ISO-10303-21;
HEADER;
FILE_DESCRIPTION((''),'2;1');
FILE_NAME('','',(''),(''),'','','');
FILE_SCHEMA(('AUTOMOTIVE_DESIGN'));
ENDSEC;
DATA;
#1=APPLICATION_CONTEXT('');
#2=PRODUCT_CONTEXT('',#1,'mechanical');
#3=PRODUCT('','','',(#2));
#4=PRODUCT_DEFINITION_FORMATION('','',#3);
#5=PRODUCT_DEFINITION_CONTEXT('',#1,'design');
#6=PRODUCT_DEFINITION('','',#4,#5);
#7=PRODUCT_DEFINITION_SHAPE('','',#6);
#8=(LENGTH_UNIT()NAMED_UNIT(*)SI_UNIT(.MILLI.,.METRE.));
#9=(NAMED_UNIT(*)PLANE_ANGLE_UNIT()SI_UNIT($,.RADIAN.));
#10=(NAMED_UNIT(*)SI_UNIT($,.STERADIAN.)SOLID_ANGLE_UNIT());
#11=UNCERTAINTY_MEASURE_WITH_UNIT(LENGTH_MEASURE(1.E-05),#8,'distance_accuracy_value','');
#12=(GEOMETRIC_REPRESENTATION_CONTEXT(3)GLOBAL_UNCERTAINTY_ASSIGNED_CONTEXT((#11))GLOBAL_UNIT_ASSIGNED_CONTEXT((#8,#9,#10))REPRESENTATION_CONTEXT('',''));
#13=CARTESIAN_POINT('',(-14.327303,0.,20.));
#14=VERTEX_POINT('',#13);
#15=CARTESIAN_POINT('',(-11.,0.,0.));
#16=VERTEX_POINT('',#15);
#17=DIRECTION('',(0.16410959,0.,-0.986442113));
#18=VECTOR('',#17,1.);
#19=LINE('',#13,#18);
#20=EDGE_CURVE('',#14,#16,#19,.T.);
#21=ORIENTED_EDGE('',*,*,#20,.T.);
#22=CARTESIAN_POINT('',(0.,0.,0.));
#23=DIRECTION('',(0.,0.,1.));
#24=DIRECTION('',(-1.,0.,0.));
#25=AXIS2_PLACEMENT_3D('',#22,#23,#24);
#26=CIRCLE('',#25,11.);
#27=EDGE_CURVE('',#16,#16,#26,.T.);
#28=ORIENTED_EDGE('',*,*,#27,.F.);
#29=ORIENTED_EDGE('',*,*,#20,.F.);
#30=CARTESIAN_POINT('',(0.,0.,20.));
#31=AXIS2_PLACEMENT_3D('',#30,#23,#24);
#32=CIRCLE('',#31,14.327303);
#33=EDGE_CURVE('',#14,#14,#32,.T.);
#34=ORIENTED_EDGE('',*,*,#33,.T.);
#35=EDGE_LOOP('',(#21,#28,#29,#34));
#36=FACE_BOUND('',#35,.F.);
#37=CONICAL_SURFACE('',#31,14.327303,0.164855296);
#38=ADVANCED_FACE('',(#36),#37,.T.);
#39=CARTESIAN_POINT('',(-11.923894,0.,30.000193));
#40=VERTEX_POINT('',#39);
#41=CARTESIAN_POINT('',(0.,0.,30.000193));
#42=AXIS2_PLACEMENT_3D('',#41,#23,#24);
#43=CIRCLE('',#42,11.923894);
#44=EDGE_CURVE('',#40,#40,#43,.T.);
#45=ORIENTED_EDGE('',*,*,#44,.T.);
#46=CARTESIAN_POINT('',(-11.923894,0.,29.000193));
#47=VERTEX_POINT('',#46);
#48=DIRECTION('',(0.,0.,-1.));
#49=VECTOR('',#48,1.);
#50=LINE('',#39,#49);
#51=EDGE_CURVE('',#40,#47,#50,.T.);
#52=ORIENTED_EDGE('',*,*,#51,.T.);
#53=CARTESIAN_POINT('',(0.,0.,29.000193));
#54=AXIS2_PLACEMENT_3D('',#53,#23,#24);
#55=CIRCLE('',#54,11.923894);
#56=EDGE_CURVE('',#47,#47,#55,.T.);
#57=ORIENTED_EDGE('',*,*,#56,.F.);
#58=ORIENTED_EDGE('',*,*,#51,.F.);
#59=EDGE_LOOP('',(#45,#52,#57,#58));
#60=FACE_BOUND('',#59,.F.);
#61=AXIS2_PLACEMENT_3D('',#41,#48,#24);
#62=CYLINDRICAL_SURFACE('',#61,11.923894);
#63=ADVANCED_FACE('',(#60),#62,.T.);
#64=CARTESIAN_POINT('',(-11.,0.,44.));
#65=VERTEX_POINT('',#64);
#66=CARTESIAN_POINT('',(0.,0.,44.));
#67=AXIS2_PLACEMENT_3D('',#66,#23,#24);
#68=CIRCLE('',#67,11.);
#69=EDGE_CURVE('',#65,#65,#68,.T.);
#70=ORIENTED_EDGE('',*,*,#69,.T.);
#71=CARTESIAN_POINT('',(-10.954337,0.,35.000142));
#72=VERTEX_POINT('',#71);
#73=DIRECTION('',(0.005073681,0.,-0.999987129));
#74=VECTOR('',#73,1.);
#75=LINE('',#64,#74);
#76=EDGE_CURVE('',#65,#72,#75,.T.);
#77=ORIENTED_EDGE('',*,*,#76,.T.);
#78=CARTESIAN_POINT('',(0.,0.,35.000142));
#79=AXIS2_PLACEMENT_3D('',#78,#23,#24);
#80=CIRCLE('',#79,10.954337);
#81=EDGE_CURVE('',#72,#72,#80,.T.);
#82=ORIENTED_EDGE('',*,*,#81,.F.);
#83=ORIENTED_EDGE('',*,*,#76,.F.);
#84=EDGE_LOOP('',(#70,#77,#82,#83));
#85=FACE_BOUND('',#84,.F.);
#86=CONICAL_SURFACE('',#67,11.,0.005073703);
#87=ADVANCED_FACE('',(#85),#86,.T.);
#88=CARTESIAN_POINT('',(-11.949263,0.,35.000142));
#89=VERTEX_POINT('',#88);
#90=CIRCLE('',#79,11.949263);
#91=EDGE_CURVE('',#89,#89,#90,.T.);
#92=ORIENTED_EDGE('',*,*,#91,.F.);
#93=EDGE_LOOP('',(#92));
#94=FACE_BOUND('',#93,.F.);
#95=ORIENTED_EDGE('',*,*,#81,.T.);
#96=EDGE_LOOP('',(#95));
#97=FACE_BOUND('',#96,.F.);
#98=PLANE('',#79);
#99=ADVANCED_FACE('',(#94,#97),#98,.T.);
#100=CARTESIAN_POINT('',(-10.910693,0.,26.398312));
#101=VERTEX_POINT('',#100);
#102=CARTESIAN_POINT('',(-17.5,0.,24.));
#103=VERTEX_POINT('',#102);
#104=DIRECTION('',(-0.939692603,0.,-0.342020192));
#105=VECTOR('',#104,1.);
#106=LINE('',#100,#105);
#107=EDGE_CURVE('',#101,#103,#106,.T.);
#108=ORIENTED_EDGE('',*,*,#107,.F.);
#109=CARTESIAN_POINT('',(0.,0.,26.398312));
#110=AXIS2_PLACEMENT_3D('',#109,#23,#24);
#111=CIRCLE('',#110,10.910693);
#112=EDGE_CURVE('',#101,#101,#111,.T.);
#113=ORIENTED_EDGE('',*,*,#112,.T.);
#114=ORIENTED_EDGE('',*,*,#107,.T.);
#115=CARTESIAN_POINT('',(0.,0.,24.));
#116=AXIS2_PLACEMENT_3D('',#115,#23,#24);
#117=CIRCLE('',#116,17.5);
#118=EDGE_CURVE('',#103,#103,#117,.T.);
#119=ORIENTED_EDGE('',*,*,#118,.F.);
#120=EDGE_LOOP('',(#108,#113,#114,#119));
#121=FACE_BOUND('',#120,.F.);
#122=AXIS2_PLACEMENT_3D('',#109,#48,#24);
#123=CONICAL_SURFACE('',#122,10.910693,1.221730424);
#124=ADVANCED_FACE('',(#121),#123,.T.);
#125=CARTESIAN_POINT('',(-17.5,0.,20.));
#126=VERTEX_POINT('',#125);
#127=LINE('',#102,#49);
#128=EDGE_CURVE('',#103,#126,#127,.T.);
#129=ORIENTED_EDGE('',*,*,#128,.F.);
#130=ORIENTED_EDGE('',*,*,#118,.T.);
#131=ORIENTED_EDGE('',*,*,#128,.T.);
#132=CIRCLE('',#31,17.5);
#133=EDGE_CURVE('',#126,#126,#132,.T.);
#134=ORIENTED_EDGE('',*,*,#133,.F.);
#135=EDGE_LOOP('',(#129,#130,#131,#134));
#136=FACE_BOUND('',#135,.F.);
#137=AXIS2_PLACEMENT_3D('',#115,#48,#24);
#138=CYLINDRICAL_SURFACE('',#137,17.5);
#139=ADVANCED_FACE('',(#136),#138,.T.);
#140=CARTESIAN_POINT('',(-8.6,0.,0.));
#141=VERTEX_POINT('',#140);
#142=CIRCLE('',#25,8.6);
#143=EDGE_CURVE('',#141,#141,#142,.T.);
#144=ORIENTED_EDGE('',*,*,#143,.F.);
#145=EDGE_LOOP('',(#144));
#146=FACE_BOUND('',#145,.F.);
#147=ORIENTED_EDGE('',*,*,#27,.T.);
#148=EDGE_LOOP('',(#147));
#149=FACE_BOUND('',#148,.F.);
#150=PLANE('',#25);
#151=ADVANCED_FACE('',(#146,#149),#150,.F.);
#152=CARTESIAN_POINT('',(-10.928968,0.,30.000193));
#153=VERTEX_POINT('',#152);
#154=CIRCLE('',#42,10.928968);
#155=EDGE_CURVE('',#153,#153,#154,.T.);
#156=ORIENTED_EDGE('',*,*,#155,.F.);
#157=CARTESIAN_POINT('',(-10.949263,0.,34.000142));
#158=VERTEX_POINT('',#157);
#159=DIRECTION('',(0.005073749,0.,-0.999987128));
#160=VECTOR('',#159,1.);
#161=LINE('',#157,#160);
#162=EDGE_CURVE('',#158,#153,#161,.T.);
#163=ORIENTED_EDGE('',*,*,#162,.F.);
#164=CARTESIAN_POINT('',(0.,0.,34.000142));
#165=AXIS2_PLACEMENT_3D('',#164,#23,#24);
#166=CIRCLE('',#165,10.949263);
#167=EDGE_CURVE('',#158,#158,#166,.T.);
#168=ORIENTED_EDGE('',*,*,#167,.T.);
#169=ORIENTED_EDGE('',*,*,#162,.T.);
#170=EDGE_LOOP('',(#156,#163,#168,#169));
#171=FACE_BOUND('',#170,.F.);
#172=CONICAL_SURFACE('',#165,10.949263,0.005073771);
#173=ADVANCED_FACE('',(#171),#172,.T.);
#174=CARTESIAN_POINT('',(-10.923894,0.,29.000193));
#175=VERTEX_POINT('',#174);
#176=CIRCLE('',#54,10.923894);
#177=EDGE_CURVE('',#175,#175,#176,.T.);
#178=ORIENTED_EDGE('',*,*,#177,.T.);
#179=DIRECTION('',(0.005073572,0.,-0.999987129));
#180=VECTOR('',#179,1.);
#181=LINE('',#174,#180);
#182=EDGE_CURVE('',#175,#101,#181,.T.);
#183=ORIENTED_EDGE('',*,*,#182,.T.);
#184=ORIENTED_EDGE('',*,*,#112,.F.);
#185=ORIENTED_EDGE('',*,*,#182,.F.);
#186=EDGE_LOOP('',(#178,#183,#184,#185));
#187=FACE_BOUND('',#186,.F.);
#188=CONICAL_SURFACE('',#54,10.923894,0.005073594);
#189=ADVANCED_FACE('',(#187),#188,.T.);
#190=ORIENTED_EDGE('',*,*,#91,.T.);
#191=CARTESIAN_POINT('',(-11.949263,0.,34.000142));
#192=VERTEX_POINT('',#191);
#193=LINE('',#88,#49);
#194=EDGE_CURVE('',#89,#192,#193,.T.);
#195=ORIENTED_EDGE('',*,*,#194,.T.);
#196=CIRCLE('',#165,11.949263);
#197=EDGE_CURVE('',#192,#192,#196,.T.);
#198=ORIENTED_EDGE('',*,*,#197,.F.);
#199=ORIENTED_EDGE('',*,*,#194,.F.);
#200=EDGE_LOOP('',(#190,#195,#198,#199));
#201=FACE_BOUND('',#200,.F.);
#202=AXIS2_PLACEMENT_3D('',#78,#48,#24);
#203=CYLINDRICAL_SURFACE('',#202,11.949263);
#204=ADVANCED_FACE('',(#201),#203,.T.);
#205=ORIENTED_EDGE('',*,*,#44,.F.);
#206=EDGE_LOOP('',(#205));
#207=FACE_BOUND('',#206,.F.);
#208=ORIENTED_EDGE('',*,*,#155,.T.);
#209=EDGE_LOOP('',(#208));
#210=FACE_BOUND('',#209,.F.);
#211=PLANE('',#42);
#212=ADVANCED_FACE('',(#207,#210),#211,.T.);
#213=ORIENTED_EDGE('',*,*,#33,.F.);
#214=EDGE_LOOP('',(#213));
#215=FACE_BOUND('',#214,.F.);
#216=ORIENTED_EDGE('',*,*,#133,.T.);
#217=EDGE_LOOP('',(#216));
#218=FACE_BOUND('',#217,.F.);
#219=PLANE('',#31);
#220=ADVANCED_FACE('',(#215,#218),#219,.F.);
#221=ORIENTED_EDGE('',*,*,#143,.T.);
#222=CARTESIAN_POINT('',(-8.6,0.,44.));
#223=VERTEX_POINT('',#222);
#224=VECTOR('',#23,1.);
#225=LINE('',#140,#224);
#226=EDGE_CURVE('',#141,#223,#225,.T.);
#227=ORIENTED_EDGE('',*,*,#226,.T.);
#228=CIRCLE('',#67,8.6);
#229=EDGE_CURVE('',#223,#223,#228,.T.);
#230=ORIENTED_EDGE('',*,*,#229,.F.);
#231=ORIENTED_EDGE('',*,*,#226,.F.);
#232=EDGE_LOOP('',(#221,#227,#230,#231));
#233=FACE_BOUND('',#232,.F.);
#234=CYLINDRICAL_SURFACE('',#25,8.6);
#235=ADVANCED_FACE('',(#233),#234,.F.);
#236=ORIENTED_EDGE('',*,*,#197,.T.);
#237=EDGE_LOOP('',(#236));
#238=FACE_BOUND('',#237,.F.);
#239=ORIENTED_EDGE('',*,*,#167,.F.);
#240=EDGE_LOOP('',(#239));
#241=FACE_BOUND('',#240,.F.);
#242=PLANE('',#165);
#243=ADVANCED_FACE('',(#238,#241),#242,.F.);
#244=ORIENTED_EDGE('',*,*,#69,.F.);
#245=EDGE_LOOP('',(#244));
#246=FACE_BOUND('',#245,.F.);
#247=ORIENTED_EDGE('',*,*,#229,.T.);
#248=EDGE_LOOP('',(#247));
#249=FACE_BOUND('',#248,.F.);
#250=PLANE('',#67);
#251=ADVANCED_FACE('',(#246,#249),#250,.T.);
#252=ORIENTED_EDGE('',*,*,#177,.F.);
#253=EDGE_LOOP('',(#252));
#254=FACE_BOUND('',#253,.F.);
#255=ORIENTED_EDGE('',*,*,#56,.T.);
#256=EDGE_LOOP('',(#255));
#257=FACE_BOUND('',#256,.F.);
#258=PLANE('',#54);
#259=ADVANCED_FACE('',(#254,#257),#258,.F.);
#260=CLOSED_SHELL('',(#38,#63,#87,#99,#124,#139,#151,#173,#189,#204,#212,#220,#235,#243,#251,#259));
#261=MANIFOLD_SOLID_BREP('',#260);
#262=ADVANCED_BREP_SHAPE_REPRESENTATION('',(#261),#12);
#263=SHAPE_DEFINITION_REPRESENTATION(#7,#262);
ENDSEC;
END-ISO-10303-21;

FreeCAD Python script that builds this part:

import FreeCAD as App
import Part
import Sketcher

V = App.Vector
Q = App.Units.Quantity


def add_polygon(sketch, points):
    """Adds a closed chain of lines whose ends are joined by coincident constraints."""
    first, n = sketch.GeometryCount, len(points)
    for a, b in zip(points, points[1:] + points[:1]):
        sketch.addGeometry(Part.LineSegment(App.Vector(*a, 0), App.Vector(*b, 0)), False)
    for i in range(n):
        sketch.addConstraint(Sketcher.Constraint("Coincident", first + i, 2, first + (i + 1) % n, 1))

doc = App.newDocument("Part")
body = doc.addObject("PartDesign::Body", "Body")

sketch1 = body.newObject("Sketcher::SketchObject", "Sketch")
sketch1.AttachmentSupport = (doc.getObject("XZ_Plane"), [""])
sketch1.MapMode = "FlatFace"
add_polygon(sketch1, [(-17.5, 24), (-17.5, 20), (-14.327303, 20), (-11, 0), (-8.6, 0), (-8.6, 44), (-11, 44), (-10.954337, 35.000142), (-11.949263, 35.000142), (-11.949263, 34.000142), (-10.949263, 34.000142), (-10.928968, 30.000193), (-11.923894, 30.000193), (-11.923894, 29.000193), (-10.923894, 29.000193), (-10.910693, 26.398312)])
sketch1.addConstraint([
    Sketcher.Constraint("Vertical", 0),
    Sketcher.Constraint("Horizontal", 1),
    Sketcher.Constraint("Horizontal", 3),
    Sketcher.Constraint("Vertical", 4),
    Sketcher.Constraint("Horizontal", 5),
    Sketcher.Constraint("Horizontal", 7),
    Sketcher.Constraint("Vertical", 8),
    Sketcher.Constraint("Horizontal", 9),
    Sketcher.Constraint("Horizontal", 11),
    Sketcher.Constraint("Vertical", 12),
    Sketcher.Constraint("Horizontal", 13),
    Sketcher.Constraint("PointOnObject", 2, 2, -1),
    Sketcher.Constraint("Parallel", 6, 10),
    Sketcher.Constraint("Parallel", 10, 14),
    Sketcher.Constraint("Vertical", 2, 2, 5, 2),
    Sketcher.Constraint("Equal", 7, 11),
    Sketcher.Constraint("Equal", 9, 13),
    Sketcher.Constraint("Equal", 13, 8),
    Sketcher.Constraint("Equal", 8, 12),
    Sketcher.Constraint("DistanceX", 9, 1, 9, 2, 1.0),
    Sketcher.Constraint("DistanceY", 0, 2, 0, 1, 4.0),
    Sketcher.Constraint("DistanceY", 4, 1, 4, 2, 44.0),
    Sketcher.Constraint("Angle", 15, Q("-159.999997 deg")),
    Sketcher.Constraint("Distance", 10, 4.0),
    Sketcher.Constraint("DistanceX", 3, 1, 3, 2, 2.4),
    Sketcher.Constraint("DistanceY", -1, 1, 0, 2, 20.0),
    Sketcher.Constraint("DistanceX", 2, 2, -1, 1, 11.0),
    Sketcher.Constraint("DistanceX", 0, 2, -1, 1, 17.5),
    Sketcher.Constraint("DistanceX", 13, 2, 14, 2, 0.013201),
    Sketcher.Constraint("DistanceX", 1, 1, 1, 2, 3.172697),
    Sketcher.Constraint("DistanceX", 7, 2, 7, 1, 0.994926),
    Sketcher.Constraint("DistanceY", -1, 1, 6, 2, 35.000142),
])
revolution = body.newObject("PartDesign::Revolution", "Revolution")
revolution.Profile = sketch1
revolution.ReferenceAxis = (sketch1, ["V_Axis"])
revolution.Angle = 360

doc.recompute()
